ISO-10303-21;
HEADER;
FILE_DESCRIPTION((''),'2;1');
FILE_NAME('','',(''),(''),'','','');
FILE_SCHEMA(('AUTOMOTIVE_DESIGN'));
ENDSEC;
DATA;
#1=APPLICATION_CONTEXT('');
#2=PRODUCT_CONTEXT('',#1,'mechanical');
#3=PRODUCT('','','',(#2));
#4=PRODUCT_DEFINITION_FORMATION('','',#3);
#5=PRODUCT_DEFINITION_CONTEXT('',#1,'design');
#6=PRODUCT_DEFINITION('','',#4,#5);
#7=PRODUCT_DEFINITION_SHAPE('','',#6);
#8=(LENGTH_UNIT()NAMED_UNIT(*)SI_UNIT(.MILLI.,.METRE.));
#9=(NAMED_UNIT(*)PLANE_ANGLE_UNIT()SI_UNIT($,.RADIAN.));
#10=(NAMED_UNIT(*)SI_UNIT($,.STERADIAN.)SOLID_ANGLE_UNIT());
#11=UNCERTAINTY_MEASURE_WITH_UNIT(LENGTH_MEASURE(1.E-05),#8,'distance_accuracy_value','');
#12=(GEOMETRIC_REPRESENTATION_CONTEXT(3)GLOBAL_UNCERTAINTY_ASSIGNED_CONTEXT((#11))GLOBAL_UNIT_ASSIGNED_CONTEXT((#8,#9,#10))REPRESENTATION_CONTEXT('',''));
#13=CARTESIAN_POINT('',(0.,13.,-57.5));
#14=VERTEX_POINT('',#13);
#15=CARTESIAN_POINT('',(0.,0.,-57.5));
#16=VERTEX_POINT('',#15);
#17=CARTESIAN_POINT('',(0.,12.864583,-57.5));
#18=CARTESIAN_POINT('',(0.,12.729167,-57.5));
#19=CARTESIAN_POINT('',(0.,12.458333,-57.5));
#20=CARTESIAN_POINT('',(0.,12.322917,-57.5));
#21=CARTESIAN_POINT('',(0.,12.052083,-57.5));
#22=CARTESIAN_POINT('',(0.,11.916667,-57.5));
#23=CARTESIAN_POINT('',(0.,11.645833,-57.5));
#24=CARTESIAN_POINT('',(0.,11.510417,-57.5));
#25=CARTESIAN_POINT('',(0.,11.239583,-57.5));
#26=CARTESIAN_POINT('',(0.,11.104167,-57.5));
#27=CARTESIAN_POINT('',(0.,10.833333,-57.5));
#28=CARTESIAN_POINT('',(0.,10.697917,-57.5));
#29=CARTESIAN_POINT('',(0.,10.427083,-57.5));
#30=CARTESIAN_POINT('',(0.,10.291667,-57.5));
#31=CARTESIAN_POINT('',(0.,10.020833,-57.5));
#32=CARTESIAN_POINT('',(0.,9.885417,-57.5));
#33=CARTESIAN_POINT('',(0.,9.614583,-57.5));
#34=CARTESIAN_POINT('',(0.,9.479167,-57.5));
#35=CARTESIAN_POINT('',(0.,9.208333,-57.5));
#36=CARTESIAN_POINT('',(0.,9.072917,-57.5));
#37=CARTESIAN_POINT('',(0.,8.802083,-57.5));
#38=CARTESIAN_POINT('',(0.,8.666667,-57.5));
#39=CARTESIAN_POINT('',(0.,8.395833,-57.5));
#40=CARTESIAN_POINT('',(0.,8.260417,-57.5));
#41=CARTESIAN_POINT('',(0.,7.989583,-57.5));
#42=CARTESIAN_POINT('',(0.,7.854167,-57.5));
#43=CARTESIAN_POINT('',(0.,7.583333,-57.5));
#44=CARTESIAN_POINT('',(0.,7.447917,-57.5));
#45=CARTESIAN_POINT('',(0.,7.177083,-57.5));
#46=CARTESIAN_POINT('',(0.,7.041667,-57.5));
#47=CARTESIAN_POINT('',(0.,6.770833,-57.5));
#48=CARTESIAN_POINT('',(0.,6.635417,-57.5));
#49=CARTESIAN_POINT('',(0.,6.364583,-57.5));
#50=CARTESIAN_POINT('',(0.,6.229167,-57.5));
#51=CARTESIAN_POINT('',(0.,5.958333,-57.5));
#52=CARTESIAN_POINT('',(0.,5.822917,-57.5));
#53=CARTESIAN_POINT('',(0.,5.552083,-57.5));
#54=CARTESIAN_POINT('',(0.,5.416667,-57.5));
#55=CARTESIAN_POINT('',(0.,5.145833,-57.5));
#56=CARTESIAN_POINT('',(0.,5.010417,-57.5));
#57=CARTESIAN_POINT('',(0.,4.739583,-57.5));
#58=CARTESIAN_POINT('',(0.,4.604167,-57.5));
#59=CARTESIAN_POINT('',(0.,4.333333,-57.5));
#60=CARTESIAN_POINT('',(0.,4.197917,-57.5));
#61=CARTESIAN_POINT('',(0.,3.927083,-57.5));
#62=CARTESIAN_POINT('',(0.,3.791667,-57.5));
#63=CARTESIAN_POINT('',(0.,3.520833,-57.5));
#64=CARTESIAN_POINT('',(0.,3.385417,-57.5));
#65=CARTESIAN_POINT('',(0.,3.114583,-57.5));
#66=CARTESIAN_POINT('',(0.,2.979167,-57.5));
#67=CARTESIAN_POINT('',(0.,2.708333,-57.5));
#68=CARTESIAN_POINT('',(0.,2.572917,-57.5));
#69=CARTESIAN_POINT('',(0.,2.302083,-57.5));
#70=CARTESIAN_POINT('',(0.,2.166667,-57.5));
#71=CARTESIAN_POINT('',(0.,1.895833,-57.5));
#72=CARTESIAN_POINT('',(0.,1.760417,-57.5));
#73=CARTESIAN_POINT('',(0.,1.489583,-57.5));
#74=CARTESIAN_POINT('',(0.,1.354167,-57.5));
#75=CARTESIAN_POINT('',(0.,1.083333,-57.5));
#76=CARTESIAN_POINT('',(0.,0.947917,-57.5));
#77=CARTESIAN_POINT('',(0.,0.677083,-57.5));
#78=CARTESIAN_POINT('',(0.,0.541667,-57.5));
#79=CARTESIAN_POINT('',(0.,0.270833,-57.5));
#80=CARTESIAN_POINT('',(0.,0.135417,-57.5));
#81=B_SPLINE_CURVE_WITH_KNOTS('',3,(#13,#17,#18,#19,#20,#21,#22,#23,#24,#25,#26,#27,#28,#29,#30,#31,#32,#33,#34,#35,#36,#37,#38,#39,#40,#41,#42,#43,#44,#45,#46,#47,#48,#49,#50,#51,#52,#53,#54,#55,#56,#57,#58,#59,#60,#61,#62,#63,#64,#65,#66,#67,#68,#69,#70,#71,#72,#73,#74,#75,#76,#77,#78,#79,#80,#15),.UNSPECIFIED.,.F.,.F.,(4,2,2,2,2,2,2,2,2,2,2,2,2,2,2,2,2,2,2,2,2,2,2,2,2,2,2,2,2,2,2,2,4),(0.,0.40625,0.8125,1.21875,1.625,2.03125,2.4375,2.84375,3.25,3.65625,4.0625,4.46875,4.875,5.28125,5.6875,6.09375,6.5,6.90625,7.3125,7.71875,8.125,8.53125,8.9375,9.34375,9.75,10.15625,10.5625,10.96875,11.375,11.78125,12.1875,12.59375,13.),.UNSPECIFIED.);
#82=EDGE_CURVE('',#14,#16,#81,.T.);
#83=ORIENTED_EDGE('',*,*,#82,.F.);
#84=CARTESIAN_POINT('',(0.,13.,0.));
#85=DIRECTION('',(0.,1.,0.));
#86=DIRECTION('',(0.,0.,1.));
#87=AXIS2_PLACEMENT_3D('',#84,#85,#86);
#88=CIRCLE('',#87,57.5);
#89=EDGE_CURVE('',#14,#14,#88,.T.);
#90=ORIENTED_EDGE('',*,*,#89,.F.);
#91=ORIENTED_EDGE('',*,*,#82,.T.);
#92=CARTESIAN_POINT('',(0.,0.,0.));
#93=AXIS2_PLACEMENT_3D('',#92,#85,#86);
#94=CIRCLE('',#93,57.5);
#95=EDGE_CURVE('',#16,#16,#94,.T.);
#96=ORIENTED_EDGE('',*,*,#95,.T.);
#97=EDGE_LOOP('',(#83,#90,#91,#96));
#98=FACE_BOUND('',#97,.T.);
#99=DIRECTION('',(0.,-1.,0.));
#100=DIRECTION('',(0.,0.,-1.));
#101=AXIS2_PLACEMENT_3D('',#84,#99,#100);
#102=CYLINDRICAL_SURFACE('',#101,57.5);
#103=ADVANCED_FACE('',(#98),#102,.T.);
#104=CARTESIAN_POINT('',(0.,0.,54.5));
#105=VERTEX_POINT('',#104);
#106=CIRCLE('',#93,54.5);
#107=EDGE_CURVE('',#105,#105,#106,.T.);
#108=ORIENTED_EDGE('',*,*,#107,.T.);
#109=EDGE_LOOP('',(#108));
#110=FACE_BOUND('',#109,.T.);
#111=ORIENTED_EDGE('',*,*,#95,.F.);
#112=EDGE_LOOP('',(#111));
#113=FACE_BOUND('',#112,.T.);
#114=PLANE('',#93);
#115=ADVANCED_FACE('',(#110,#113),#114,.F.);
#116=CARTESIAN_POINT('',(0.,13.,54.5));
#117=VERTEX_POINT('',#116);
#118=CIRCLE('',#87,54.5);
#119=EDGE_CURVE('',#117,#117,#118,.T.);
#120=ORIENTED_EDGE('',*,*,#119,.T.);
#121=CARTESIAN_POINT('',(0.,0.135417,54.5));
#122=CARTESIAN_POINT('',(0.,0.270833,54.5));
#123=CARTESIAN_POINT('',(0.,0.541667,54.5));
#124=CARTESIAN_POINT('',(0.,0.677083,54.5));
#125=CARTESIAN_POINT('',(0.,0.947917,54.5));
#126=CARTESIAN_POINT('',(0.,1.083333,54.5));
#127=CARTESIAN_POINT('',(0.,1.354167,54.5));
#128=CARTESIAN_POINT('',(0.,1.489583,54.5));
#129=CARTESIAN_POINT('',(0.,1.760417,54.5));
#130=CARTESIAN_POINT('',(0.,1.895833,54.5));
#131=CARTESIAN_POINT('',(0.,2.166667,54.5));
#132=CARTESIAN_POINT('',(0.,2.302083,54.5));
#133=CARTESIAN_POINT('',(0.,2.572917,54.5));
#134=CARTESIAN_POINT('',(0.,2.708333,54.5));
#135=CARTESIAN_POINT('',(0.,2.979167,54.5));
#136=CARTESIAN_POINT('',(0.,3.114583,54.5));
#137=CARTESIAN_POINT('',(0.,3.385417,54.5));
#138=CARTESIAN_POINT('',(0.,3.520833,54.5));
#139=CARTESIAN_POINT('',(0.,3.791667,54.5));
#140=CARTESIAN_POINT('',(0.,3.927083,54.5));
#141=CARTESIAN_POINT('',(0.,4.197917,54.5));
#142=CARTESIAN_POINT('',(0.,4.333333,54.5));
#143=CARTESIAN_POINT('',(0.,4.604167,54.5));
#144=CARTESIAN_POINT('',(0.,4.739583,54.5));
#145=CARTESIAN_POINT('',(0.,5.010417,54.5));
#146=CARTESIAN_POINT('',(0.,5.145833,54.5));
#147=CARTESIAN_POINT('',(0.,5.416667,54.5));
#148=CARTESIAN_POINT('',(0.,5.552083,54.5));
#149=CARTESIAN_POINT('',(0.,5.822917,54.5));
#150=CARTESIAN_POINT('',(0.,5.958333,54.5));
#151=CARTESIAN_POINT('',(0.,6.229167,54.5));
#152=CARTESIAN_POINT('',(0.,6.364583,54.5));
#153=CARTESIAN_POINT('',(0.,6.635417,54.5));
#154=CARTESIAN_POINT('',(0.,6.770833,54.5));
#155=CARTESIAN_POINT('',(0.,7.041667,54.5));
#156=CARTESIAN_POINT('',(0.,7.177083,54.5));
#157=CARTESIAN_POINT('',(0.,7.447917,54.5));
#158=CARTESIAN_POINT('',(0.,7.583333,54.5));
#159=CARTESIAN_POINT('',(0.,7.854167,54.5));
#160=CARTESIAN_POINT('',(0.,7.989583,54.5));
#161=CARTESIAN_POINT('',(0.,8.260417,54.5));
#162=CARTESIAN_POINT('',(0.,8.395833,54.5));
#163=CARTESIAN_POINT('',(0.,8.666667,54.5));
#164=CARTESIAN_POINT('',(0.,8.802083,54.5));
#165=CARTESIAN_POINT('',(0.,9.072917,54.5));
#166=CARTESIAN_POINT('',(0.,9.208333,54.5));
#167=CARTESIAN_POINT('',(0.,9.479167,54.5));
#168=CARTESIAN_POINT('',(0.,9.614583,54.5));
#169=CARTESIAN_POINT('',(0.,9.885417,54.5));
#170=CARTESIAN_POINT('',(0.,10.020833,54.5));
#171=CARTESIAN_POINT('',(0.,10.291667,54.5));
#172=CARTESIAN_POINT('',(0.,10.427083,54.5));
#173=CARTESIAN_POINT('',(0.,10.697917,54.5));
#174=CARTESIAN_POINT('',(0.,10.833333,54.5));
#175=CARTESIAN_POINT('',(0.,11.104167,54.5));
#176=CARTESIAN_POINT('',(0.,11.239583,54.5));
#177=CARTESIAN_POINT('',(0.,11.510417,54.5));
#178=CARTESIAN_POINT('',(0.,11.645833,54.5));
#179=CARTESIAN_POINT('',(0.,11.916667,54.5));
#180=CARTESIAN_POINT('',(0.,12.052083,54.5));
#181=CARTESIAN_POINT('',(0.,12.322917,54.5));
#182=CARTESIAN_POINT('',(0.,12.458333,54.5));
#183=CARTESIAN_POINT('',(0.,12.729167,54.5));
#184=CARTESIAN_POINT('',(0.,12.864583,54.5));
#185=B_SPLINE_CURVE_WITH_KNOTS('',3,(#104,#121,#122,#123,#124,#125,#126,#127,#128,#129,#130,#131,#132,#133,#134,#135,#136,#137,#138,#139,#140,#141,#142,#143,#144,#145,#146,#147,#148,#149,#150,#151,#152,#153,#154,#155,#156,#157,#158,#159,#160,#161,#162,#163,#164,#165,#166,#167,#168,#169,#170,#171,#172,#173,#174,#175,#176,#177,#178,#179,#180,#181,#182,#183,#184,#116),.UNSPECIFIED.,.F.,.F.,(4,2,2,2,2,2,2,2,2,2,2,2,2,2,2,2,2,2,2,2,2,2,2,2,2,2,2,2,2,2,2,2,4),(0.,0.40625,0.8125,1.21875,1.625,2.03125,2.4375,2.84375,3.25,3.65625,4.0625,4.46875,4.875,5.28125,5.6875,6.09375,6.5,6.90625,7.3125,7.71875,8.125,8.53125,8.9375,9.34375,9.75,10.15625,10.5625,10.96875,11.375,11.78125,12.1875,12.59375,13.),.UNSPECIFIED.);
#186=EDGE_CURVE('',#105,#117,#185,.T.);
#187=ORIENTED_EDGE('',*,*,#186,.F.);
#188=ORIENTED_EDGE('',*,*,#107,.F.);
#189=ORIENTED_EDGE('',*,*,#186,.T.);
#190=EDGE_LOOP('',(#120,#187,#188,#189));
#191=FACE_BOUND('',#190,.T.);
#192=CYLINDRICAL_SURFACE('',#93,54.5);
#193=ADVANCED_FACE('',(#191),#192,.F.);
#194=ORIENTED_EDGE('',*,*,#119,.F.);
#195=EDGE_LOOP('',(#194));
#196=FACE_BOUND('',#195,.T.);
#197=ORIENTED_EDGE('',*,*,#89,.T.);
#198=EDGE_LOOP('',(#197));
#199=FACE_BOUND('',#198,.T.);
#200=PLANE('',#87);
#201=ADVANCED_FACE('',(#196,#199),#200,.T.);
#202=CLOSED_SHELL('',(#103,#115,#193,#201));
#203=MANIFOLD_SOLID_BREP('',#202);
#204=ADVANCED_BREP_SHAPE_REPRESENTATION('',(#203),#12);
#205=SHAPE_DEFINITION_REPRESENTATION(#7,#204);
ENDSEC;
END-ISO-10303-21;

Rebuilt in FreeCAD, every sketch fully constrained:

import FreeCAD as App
import Part
import Sketcher
from FreeCAD import Vector
Q = App.Units.Quantity

doc = App.newDocument("Part")
body = doc.addObject("PartDesign::Body", "Body")

# Sketch on XZ plane
sketch1 = body.newObject("Sketcher::SketchObject", "Sketch")
sketch1.AttachmentSupport = (doc.getObject("XZ_Plane"), [""])
sketch1.MapMode = "FlatFace"
sketch1.addGeometry(Part.Circle(Vector(0, 0, 0), Vector(0, 0, 1), 58), False)
sketch1.addConstraint(Sketcher.Constraint("Coincident", 0, 3, -1, 1))
sketch1.addConstraint(Sketcher.Constraint("Diameter", 0, Q("115 mm")))
pad1 = body.newObject("PartDesign::Pad", "Pad")
pad1.Profile = sketch1
pad1.Length = 13
pad1.Reversed = True

# Sketch on XZ plane
sketch2 = body.newObject("Sketcher::SketchObject", "Sketch001")
sketch2.AttachmentSupport = (doc.getObject("XZ_Plane"), [""])
sketch2.MapMode = "FlatFace"
sketch2.AttachmentOffset = App.Placement(Vector(0, 0, -13), App.Rotation())
sketch2.addGeometry(Part.Circle(Vector(0, 0, 0), Vector(0, 0, 1), 54), False)
sketch2.addConstraint(Sketcher.Constraint("Coincident", 0, 3, -1, 1))
sketch2.addConstraint(Sketcher.Constraint("Diameter", 0, Q("109 mm")))
pocket1 = body.newObject("PartDesign::Pocket", "Pocket")
pocket1.Profile = sketch2
pocket1.Length = 13
pocket1.Reversed = True

doc.recompute()
